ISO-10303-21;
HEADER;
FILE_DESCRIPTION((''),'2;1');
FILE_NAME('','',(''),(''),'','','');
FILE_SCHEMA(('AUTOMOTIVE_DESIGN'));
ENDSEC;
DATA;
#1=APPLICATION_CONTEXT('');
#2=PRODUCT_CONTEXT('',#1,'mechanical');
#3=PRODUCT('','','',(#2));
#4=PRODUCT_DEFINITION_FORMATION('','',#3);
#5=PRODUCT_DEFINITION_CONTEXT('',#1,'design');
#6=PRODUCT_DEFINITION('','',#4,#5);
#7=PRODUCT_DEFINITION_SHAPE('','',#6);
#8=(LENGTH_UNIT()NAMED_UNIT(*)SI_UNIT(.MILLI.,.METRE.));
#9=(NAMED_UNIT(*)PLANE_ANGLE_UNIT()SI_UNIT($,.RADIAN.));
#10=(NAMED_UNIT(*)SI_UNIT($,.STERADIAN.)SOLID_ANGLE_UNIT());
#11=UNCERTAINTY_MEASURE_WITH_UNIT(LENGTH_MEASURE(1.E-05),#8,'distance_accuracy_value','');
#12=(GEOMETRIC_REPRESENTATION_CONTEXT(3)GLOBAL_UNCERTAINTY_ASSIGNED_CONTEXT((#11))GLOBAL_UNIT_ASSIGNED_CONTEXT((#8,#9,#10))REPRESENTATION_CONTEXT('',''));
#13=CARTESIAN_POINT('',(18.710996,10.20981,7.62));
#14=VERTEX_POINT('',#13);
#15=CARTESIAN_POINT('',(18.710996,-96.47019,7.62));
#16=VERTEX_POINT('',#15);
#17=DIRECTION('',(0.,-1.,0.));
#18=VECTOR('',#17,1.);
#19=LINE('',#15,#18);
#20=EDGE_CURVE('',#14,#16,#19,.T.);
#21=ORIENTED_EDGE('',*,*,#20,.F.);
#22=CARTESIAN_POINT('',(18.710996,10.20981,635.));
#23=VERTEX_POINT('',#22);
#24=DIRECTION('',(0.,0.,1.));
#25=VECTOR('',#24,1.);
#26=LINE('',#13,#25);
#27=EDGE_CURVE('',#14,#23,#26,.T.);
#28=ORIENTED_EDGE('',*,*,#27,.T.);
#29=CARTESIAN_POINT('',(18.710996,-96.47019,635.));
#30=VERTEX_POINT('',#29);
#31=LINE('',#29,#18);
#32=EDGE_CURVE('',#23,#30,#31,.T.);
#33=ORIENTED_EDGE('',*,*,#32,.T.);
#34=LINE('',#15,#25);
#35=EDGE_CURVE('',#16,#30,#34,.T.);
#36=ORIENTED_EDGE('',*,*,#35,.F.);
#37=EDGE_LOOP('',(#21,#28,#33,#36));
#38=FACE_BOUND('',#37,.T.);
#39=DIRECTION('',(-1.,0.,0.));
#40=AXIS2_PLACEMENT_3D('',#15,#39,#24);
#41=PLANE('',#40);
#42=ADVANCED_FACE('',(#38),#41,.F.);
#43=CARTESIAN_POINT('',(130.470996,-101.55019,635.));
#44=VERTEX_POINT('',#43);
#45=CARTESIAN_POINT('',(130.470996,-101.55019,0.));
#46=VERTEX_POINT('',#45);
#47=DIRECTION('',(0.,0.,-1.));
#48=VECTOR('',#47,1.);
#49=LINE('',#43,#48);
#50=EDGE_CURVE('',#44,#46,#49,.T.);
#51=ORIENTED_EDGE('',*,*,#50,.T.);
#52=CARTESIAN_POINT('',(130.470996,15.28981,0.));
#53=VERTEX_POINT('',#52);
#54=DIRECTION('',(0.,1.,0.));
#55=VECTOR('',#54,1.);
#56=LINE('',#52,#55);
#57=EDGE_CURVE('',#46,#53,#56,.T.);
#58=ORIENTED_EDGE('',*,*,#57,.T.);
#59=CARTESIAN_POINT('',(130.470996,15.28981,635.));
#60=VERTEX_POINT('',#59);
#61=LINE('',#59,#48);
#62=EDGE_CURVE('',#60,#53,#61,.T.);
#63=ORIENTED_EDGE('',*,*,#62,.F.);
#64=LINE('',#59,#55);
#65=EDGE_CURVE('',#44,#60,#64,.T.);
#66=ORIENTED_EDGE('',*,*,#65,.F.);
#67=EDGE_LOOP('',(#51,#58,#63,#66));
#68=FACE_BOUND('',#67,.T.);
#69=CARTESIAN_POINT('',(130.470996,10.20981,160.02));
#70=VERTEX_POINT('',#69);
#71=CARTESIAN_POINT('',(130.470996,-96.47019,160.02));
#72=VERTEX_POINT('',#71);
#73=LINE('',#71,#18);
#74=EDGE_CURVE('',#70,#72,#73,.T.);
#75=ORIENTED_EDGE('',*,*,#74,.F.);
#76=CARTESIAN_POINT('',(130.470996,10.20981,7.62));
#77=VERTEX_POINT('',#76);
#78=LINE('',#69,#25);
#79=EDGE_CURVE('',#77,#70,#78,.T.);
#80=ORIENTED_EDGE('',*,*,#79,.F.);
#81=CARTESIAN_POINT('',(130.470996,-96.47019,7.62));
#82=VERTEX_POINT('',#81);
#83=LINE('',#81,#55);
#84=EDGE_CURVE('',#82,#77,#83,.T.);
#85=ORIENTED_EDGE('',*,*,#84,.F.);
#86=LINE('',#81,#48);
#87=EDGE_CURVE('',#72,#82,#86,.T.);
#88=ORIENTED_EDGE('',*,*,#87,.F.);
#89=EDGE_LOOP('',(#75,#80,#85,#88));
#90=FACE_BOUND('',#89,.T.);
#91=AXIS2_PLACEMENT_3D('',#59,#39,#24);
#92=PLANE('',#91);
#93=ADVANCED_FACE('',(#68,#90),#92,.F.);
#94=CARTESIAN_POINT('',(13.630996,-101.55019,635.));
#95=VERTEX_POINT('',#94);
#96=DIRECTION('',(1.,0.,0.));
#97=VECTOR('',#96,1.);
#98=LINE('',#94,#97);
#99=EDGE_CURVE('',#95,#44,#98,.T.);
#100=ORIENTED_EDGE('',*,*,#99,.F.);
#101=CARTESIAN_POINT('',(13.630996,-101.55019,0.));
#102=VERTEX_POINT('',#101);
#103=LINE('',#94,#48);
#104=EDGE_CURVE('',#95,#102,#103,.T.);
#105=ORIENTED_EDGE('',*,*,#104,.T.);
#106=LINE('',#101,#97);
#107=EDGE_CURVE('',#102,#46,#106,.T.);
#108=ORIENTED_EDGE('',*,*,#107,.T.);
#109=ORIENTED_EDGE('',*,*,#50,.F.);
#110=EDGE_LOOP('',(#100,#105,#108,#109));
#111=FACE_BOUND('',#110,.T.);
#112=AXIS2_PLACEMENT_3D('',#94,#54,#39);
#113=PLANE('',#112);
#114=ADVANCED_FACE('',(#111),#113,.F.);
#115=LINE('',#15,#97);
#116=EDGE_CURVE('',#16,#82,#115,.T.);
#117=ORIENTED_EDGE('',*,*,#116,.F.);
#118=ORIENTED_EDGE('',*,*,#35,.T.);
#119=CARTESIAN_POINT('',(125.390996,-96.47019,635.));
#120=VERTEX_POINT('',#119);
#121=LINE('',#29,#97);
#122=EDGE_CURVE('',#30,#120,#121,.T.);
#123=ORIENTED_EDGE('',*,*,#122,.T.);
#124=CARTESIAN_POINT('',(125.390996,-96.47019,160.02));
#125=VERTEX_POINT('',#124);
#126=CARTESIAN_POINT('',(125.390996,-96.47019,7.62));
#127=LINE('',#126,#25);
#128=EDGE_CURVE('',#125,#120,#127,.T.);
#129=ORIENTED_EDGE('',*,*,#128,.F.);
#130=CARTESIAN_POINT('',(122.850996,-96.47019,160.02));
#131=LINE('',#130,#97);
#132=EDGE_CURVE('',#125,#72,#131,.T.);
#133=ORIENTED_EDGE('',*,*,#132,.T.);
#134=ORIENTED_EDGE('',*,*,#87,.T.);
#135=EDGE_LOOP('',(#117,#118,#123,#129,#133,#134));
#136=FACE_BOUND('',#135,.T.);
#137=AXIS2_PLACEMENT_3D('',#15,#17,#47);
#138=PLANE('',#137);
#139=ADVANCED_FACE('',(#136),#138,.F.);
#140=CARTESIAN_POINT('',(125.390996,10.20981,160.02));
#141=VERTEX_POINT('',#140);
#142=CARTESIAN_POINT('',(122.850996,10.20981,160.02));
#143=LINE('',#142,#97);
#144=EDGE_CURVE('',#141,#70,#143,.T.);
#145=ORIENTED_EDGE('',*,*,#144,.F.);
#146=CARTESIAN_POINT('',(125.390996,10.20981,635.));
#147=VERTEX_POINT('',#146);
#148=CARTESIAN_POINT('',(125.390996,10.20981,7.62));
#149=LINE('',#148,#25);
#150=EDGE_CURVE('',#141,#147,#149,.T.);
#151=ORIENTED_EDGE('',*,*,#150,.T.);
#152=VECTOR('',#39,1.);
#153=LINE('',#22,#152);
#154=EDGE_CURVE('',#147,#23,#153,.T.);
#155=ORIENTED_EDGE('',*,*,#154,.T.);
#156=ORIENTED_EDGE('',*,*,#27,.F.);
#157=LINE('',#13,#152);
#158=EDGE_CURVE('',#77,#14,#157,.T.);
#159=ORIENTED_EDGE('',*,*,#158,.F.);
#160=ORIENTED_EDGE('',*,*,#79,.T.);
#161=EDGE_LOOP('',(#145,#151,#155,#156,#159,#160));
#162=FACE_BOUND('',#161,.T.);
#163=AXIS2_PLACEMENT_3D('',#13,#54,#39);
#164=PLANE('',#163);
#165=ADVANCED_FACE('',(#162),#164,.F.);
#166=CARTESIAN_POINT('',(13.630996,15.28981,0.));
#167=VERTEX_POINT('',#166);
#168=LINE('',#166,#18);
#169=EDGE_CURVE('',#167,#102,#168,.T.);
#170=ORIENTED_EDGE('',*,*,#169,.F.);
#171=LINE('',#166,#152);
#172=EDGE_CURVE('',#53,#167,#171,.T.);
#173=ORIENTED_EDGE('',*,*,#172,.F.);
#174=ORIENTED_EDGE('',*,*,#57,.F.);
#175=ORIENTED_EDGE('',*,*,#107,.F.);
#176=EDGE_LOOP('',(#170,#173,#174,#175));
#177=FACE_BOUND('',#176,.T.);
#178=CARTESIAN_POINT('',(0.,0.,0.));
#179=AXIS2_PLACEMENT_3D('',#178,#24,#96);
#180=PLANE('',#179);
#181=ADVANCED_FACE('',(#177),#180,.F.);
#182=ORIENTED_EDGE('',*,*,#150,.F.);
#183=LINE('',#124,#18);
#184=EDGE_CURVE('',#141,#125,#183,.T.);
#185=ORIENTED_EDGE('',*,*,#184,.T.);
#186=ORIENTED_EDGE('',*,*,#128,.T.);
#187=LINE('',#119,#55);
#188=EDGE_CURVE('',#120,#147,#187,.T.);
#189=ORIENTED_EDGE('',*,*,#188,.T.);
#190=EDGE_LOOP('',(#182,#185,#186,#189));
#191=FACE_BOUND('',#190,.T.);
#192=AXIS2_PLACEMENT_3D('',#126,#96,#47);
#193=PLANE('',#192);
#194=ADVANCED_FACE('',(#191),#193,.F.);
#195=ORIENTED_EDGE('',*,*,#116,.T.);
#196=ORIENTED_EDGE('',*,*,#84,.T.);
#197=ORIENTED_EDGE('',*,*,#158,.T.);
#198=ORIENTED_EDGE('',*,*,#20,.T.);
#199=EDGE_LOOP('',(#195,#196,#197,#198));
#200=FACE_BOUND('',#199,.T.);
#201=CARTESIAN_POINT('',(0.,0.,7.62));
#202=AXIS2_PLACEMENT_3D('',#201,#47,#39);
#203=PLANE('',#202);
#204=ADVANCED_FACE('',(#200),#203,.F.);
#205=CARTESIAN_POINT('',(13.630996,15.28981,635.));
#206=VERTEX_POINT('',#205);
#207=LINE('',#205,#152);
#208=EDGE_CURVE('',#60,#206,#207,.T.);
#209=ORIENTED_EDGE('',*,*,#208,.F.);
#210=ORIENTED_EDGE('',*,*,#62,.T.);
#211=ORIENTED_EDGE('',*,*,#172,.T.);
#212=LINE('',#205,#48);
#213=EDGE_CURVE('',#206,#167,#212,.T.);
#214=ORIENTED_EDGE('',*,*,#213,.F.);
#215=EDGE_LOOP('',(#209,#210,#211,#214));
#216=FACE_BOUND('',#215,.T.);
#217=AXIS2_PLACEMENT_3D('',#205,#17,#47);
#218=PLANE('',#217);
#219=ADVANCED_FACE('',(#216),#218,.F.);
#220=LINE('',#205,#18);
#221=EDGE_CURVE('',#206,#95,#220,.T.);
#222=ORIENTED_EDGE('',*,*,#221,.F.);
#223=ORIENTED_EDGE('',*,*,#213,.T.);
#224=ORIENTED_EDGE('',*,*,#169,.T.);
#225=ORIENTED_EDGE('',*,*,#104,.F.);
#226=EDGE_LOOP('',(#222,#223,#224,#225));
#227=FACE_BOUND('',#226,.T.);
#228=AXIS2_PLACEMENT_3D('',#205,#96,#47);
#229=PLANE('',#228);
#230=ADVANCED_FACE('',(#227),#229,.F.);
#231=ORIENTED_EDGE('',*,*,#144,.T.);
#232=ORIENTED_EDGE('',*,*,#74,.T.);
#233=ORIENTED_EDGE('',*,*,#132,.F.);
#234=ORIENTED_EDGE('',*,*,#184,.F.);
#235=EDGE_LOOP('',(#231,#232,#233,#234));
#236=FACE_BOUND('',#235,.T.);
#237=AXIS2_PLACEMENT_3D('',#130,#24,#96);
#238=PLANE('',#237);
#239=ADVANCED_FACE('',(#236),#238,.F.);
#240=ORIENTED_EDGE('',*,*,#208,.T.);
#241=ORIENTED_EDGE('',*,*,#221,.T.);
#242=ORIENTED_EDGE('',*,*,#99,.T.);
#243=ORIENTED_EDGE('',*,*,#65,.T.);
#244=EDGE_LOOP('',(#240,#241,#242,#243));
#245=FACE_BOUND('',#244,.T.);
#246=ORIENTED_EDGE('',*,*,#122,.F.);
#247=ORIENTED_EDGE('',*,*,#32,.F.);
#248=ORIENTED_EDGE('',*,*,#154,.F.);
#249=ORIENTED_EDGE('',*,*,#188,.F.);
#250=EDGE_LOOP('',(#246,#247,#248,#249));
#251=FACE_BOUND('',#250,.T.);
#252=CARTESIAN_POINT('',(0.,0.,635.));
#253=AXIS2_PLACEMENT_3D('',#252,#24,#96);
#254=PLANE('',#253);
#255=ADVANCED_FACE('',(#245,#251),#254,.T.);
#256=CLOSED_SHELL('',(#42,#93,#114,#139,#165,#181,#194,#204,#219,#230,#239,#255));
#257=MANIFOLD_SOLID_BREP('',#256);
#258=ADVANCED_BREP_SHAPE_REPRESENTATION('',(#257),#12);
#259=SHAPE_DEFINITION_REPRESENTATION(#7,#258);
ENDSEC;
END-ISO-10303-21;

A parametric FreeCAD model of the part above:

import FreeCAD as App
import Part
import Sketcher
Q = App.Units.Quantity


def add_polygon(sketch, points):
    """Adds a closed chain of lines whose ends are joined by coincident constraints."""
    first, n = sketch.GeometryCount, len(points)
    for a, b in zip(points, points[1:] + points[:1]):
        sketch.addGeometry(Part.LineSegment(App.Vector(*a, 0), App.Vector(*b, 0)), False)
    for i in range(n):
        sketch.addConstraint(Sketcher.Constraint("Coincident", first + i, 2, first + (i + 1) % n, 1))

doc = App.newDocument("Part")
params = doc.addObject("Spreadsheet::Sheet", "Params")
for row, (alias, value) in enumerate([
    ("sketch1_width", "4.6 in"),
    ("pad1_length", "25 in"),
    ("sketch2_width", "4.2 in"),
    ("pocket1_length", "24.7 in"),
    ("sketch3_height", "6 in"),
    ("sketch3_width", "4.2 in"),
    ("pocket2_length", "0.3 in"),
], start=1):
    params.set(f"A{row}", alias)
    params.set(f"B{row}", "=" + value)
    params.setAlias(f"B{row}", alias)

body = doc.addObject("PartDesign::Body", "Body")

sketch1 = doc.addObject("Sketcher::SketchObject", "Sketch")
body.addObject(sketch1)
sketch1.AttachmentSupport = (doc.XY_Plane, [""])
sketch1.MapMode = "FlatFace"
add_polygon(sketch1, [(14, 15), (14, -102), (130, -102), (130, 15)])
sketch1.addConstraint([
    Sketcher.Constraint("Vertical", 0),
    Sketcher.Constraint("Horizontal", 1),
    Sketcher.Constraint("Vertical", 2),
    Sketcher.Constraint("Horizontal", 3),
    Sketcher.Constraint("Equal", 3, 0),
    Sketcher.Constraint("DistanceX", 1, 1, 1, 2, Q("4.6 in")),
    Sketcher.Constraint("DistanceY", 0, 2, -1, 1, 101.55019),
    Sketcher.Constraint("DistanceX", -1, 1, 0, 2, 13.630996),
])
sketch1.setExpression("Constraints[9]", "Params.sketch1_width")
pad1 = doc.addObject("PartDesign::Pad", "Pad")
body.addObject(pad1)
pad1.Profile = sketch1
pad1.setExpression("Length", "Params.pad1_length")

sketch2 = doc.addObject("Sketcher::SketchObject", "Sketch001")
body.addObject(sketch2)
sketch2.AttachmentSupport = (doc.XY_Plane, [""])
sketch2.MapMode = "FlatFace"
sketch2.AttachmentOffset = App.Placement(App.Vector(0, 0, 25 * 25.4), App.Rotation())
add_polygon(sketch2, [(19, 10), (19, -96), (125, -96), (125, 10)])
sketch2.addConstraint([
    Sketcher.Constraint("Vertical", 0),
    Sketcher.Constraint("Horizontal", 1),
    Sketcher.Constraint("Vertical", 2),
    Sketcher.Constraint("Horizontal", 3),
    Sketcher.Constraint("Equal", 3, 0),
    Sketcher.Constraint("DistanceX", 1, 1, 1, 2, Q("4.2 in")),
    Sketcher.Constraint("DistanceY", 0, 2, -1, 1, 96.47019),
    Sketcher.Constraint("DistanceX", -1, 1, 0, 2, 18.710996),
])
sketch2.setExpression("Constraints[9]", "Params.sketch2_width")
pocket1 = doc.addObject("PartDesign::Pocket", "Pocket")
body.addObject(pocket1)
pocket1.Profile = sketch2
pocket1.setExpression("Length", "Params.pocket1_length")

sketch3 = doc.addObject("Sketcher::SketchObject", "Sketch002")
body.addObject(sketch3)
sketch3.AttachmentSupport = (doc.YZ_Plane, [""])
sketch3.MapMode = "FlatFace"
sketch3.AttachmentOffset = App.Placement(App.Vector(0, 0, 130.470996), App.Rotation())
add_polygon(sketch3, [(10, 160), (-96, 160), (-96, 8), (10, 8)])
sketch3.addConstraint([
    Sketcher.Constraint("Horizontal", 0),
    Sketcher.Constraint("Vertical", 1),
    Sketcher.Constraint("Horizontal", 2),
    Sketcher.Constraint("Vertical", 3),
    Sketcher.Constraint("DistanceY", 1, 2, 1, 1, Q("6 in")),
    Sketcher.Constraint("DistanceX", 0, 2, 0, 1, Q("4.2 in")),
    Sketcher.Constraint("DistanceY", -1, 1, 0, 2, Q("6.3 in")),
    Sketcher.Constraint("DistanceX", 0, 2, -1, 1, 96.47019),
])
sketch3.setExpression("Constraints[8]", "Params.sketch3_height")
sketch3.setExpression("Constraints[9]", "Params.sketch3_width")
pocket2 = doc.addObject("PartDesign::Pocket", "Pocket001")
body.addObject(pocket2)
pocket2.Profile = sketch3
pocket2.setExpression("Length", "Params.pocket2_length")

doc.recompute()
